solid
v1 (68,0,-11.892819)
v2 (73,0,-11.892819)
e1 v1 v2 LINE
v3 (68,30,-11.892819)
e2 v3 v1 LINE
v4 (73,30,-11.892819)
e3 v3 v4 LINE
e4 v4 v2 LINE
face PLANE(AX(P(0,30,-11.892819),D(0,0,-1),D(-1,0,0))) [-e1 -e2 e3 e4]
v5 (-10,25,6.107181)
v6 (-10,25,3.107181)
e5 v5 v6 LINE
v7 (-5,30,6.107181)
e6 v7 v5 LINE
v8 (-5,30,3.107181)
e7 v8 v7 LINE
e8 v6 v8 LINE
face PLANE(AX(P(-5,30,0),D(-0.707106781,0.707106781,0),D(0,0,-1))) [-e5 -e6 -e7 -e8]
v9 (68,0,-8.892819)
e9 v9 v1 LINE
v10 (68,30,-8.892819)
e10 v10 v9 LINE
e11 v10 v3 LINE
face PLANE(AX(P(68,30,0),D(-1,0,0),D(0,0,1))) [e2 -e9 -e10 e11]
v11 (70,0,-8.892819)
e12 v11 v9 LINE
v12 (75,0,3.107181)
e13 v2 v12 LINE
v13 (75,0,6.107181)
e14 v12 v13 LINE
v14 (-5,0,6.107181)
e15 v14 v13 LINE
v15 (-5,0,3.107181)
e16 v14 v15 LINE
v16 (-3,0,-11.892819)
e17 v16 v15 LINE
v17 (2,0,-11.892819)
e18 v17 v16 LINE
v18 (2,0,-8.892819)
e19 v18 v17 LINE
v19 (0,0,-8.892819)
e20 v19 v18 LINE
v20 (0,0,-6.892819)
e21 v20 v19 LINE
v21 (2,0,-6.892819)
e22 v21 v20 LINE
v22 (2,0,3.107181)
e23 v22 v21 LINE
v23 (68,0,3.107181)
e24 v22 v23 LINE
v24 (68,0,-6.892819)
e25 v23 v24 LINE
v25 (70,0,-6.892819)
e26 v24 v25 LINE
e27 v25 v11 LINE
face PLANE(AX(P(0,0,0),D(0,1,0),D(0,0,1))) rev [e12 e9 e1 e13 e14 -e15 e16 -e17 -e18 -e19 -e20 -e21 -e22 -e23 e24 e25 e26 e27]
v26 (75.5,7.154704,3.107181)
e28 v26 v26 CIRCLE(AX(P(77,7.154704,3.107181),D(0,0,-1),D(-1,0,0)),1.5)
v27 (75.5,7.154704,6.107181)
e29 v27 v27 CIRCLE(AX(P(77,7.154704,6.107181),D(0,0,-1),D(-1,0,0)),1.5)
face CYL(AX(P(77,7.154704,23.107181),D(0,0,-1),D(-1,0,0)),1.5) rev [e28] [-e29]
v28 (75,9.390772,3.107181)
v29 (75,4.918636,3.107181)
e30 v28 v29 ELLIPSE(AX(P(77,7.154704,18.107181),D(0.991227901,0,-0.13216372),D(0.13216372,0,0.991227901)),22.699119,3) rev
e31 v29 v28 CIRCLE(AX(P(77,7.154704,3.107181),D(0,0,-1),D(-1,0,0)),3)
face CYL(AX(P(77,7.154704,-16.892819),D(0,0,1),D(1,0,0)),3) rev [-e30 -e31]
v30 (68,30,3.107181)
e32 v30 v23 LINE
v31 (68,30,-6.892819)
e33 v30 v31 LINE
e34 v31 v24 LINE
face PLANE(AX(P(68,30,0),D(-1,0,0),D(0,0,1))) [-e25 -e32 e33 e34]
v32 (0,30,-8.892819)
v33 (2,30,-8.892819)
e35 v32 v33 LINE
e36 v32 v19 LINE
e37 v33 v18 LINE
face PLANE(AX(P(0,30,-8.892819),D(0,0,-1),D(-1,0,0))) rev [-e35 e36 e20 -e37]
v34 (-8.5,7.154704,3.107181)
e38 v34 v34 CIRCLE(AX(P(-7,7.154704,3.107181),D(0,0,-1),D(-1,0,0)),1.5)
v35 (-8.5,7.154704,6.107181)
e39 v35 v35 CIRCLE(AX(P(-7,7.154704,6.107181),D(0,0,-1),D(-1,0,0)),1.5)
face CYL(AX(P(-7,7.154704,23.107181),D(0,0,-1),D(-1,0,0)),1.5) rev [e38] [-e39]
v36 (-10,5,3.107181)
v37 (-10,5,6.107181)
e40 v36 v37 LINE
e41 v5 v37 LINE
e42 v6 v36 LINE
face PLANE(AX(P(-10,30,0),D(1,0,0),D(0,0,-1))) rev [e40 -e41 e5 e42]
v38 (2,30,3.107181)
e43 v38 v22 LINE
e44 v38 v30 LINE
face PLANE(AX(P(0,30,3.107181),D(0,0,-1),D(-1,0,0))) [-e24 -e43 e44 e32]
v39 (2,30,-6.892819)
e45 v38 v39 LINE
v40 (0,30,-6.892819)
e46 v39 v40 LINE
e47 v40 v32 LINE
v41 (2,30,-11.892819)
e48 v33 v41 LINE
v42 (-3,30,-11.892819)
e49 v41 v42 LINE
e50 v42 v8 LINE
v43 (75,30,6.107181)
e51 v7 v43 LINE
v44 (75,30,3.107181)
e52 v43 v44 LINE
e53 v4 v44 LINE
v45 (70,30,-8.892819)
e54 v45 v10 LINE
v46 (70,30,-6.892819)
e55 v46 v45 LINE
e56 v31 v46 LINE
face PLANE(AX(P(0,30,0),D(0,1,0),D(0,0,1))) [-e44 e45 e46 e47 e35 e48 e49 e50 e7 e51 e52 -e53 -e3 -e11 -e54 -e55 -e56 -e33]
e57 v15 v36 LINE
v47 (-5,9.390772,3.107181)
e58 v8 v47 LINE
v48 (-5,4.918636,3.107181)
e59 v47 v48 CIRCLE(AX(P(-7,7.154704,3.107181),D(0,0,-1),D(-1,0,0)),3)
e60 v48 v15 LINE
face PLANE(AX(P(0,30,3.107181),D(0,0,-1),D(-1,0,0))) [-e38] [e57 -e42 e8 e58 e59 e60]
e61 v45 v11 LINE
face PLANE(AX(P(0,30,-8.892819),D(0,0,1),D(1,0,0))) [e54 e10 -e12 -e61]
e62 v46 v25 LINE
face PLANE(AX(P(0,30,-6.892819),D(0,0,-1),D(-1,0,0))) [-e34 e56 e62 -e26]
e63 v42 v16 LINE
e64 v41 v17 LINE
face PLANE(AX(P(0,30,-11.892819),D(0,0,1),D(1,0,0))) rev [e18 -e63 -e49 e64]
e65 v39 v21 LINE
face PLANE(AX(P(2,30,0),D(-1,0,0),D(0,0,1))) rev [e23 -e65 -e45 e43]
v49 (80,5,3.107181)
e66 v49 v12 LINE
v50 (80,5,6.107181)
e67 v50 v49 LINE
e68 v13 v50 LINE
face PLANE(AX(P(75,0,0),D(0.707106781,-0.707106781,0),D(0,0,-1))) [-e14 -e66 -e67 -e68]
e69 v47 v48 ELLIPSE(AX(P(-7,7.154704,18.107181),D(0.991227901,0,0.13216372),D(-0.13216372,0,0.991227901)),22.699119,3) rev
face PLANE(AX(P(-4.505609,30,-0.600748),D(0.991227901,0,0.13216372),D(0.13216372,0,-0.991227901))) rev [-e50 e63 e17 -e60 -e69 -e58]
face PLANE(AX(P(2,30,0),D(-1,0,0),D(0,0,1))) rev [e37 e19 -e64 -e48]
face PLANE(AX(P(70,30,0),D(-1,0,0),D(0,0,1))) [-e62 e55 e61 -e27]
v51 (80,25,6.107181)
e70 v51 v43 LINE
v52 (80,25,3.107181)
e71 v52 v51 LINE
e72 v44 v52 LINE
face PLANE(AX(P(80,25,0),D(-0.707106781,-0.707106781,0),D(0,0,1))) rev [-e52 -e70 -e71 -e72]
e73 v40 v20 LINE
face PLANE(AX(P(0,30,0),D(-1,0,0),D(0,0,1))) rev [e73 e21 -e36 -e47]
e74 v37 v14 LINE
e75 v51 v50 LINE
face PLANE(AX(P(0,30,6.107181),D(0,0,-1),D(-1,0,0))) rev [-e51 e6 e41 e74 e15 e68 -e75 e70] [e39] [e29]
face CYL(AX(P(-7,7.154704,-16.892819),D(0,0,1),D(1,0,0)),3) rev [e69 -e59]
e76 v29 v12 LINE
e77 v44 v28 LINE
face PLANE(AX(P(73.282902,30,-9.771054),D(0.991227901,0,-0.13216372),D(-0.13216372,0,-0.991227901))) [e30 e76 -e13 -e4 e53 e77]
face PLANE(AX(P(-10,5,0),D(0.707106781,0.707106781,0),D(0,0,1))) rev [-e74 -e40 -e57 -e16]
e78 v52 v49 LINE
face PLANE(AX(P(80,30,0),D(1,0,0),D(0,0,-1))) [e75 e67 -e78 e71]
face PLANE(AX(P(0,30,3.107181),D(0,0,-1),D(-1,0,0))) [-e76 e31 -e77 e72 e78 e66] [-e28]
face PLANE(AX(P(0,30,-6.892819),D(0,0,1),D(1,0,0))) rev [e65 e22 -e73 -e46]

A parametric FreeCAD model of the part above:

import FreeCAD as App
import Part
import Sketcher

V = App.Vector
Q = App.Units.Quantity


def edges_at(feature, points):
    """Names of the edges that pass closest to the given points."""
    edges = feature.Shape.Edges
    near = lambda p: min(range(len(edges)), key=lambda i: edges[i].distToShape(Part.Vertex(*p))[0])
    return sorted({f"Edge{near(p) + 1}" for p in points})


def add_polygon(sketch, points):
    """Adds a closed chain of lines whose ends are joined by coincident constraints."""
    first, n = sketch.GeometryCount, len(points)
    for a, b in zip(points, points[1:] + points[:1]):
        sketch.addGeometry(Part.LineSegment(App.Vector(*a, 0), App.Vector(*b, 0)), False)
    for i in range(n):
        sketch.addConstraint(Sketcher.Constraint("Coincident", first + i, 2, first + (i + 1) % n, 1))

doc = App.newDocument("Part")
body = doc.addObject("PartDesign::Body", "Body")

# Sketch on XZ plane
sketch1 = body.newObject("Sketcher::SketchObject", "Sketch")
sketch1.AttachmentSupport = (doc.getObject("XZ_Plane"), [""])
sketch1.MapMode = "FlatFace"
add_polygon(sketch1, [(-10, 3.1), (-10, 6.1), (80, 6.1), (80, 3.1), (75, 3.1), (73, -11.9), (68, -11.9), (68, -8.9), (70, -8.9), (70, -6.9), (68, -6.9), (68, 3.1), (2, 3.1), (2, -6.9), (0, -6.9), (0, -8.9), (2, -8.9), (2, -11.9), (-3, -11.9), (-5, 3.1)])  # lines 0-19
sketch1.addConstraint([
    Sketcher.Constraint("Vertical", 0),
    Sketcher.Constraint("Horizontal", 1),
    Sketcher.Constraint("Vertical", 2),
    Sketcher.Constraint("Horizontal", 3),
    Sketcher.Constraint("Horizontal", 5),
    Sketcher.Constraint("Vertical", 6),
    Sketcher.Constraint("Horizontal", 7),
    Sketcher.Constraint("Vertical", 8),
    Sketcher.Constraint("Horizontal", 9),
    Sketcher.Constraint("Vertical", 10),
    Sketcher.Constraint("Horizontal", 11),
    Sketcher.Constraint("Vertical", 12),
    Sketcher.Constraint("Horizontal", 13),
    Sketcher.Constraint("Vertical", 14),
    Sketcher.Constraint("Horizontal", 15),
    Sketcher.Constraint("Vertical", 16),
    Sketcher.Constraint("Horizontal", 17),
    Sketcher.Constraint("Horizontal", 19),
    Sketcher.Constraint("PointOnObject", 13, 2, -2),
    Sketcher.Constraint("Horizontal", 3, 2, 10, 2),
    Sketcher.Constraint("Horizontal", 9, 2, 12, 2),
    Sketcher.Constraint("Horizontal", 7, 2, 14, 2),
    Sketcher.Constraint("Horizontal", 5, 2, 16, 2),
    Sketcher.Constraint("Horizontal", 11, 2, 18, 2),
    Sketcher.Constraint("Vertical", 6, 2, 9, 2),
    Sketcher.Constraint("Vertical", 12, 2, 15, 2),
    Sketcher.Constraint("Equal", 3, 5),
    Sketcher.Constraint("Equal", 9, 13),
    Sketcher.Constraint("Equal", 5, 17),
    Sketcher.Constraint("Equal", 17, 19),
    Sketcher.Constraint("Equal", 2, 6),
    Sketcher.Constraint("Equal", 15, 8),
    Sketcher.Constraint("Equal", 4, 18),
    Sketcher.Constraint("DistanceX", 1, 1, 1, 2, Q("90 mm")),
    Sketcher.Constraint("DistanceX", 3, 2, 3, 1, Q("5 mm")),
    Sketcher.Constraint("DistanceX", 7, 1, 7, 2, Q("2 mm")),
    Sketcher.Constraint("DistanceX", 11, 2, 11, 1, Q("66 mm")),
    Sketcher.Constraint("DistanceY", 0, 1, 0, 2, Q("3 mm")),
    Sketcher.Constraint("DistanceY", 10, 1, 10, 2, Q("10 mm")),
    Sketcher.Constraint("DistanceY", -1, 1, 0, 2, Q("6.107181 mm")),
])
pad1 = body.newObject("PartDesign::Pad", "Pad")
pad1.Profile = sketch1
pad1.Length = 30
pad1.Reversed = True

# Sketch on XY plane
sketch2 = body.newObject("Sketcher::SketchObject", "Sketch001")
sketch2.AttachmentSupport = (doc.getObject("XY_Plane"), [""])
sketch2.MapMode = "FlatFace"
sketch2.AttachmentOffset = App.Placement(V(0, 0, 3.107181), App.Rotation())
sketch2.addGeometry([
    Part.Circle(V(-7, 7.2, 0), V(0, 0, 1), 1.5),
    Part.Circle(V(77, 7.2, 0), V(0, 0, 1), 1.5),
], False)
sketch2.addConstraint([
    Sketcher.Constraint("Equal", 0, 1),
    Sketcher.Constraint("Horizontal", 0, 3, 1, 3),
    Sketcher.Constraint("Diameter", 0, Q("3 mm")),
    Sketcher.Constraint("DistanceX", 0, 3, -1, 1, Q("7 mm")),
    Sketcher.Constraint("DistanceX", -1, 1, 1, 3, Q("77 mm")),
    Sketcher.Constraint("DistanceY", -1, 1, 0, 3, Q("7.154704 mm")),
])
pocket1 = body.newObject("PartDesign::Pocket", "Pocket")
pocket1.Profile = sketch2
pocket1.Length = 20
pocket1.Reversed = True

# Sketch on XY plane
sketch3 = body.newObject("Sketcher::SketchObject", "Sketch002")
sketch3.AttachmentSupport = (doc.getObject("XY_Plane"), [""])
sketch3.MapMode = "FlatFace"
sketch3.AttachmentOffset = App.Placement(V(0, 0, -16.892819), App.Rotation())
sketch3.addGeometry([
    Part.Circle(V(-7, 7.2, 0), V(0, 0, 1), 3),
    Part.Circle(V(-7, 7.2, 0), V(0, 0, 1), 1.5),
    Part.Circle(V(77, 7.2, 0), V(0, 0, 1), 3),
    Part.Circle(V(77, 7.2, 0), V(0, 0, 1), 1.5),
], False)
sketch3.addConstraint([
    Sketcher.Constraint("Coincident", 1, 3, 0, 3),
    Sketcher.Constraint("Coincident", 3, 3, 2, 3),
    Sketcher.Constraint("Equal", 0, 2),
    Sketcher.Constraint("Equal", 1, 3),
    Sketcher.Constraint("Horizontal", 1, 3, 2, 3),
    Sketcher.Constraint("Diameter", 0, Q("6 mm")),
    Sketcher.Constraint("Diameter", 1, Q("3 mm")),
    Sketcher.Constraint("DistanceX", 0, 3, -1, 1, Q("7 mm")),
    Sketcher.Constraint("DistanceX", -1, 1, 2, 3, Q("77 mm")),
    Sketcher.Constraint("DistanceY", -1, 1, 0, 3, Q("7.154704 mm")),
])
pocket2 = body.newObject("PartDesign::Pocket", "Pocket001")
pocket2.Profile = sketch3
pocket2.Length = 20
pocket2.Reversed = True
doc.recompute()

chamfer = body.newObject("PartDesign::Chamfer", "Chamfer")
chamfer.Base = (pocket2, edges_at(pocket2, [
    (80, 0, 4.607),
    (80, 30, 4.607),
    (-10, 0, 4.607),
    (-10, 30, 4.607),
]))
chamfer.Size = 5

doc.recompute()
